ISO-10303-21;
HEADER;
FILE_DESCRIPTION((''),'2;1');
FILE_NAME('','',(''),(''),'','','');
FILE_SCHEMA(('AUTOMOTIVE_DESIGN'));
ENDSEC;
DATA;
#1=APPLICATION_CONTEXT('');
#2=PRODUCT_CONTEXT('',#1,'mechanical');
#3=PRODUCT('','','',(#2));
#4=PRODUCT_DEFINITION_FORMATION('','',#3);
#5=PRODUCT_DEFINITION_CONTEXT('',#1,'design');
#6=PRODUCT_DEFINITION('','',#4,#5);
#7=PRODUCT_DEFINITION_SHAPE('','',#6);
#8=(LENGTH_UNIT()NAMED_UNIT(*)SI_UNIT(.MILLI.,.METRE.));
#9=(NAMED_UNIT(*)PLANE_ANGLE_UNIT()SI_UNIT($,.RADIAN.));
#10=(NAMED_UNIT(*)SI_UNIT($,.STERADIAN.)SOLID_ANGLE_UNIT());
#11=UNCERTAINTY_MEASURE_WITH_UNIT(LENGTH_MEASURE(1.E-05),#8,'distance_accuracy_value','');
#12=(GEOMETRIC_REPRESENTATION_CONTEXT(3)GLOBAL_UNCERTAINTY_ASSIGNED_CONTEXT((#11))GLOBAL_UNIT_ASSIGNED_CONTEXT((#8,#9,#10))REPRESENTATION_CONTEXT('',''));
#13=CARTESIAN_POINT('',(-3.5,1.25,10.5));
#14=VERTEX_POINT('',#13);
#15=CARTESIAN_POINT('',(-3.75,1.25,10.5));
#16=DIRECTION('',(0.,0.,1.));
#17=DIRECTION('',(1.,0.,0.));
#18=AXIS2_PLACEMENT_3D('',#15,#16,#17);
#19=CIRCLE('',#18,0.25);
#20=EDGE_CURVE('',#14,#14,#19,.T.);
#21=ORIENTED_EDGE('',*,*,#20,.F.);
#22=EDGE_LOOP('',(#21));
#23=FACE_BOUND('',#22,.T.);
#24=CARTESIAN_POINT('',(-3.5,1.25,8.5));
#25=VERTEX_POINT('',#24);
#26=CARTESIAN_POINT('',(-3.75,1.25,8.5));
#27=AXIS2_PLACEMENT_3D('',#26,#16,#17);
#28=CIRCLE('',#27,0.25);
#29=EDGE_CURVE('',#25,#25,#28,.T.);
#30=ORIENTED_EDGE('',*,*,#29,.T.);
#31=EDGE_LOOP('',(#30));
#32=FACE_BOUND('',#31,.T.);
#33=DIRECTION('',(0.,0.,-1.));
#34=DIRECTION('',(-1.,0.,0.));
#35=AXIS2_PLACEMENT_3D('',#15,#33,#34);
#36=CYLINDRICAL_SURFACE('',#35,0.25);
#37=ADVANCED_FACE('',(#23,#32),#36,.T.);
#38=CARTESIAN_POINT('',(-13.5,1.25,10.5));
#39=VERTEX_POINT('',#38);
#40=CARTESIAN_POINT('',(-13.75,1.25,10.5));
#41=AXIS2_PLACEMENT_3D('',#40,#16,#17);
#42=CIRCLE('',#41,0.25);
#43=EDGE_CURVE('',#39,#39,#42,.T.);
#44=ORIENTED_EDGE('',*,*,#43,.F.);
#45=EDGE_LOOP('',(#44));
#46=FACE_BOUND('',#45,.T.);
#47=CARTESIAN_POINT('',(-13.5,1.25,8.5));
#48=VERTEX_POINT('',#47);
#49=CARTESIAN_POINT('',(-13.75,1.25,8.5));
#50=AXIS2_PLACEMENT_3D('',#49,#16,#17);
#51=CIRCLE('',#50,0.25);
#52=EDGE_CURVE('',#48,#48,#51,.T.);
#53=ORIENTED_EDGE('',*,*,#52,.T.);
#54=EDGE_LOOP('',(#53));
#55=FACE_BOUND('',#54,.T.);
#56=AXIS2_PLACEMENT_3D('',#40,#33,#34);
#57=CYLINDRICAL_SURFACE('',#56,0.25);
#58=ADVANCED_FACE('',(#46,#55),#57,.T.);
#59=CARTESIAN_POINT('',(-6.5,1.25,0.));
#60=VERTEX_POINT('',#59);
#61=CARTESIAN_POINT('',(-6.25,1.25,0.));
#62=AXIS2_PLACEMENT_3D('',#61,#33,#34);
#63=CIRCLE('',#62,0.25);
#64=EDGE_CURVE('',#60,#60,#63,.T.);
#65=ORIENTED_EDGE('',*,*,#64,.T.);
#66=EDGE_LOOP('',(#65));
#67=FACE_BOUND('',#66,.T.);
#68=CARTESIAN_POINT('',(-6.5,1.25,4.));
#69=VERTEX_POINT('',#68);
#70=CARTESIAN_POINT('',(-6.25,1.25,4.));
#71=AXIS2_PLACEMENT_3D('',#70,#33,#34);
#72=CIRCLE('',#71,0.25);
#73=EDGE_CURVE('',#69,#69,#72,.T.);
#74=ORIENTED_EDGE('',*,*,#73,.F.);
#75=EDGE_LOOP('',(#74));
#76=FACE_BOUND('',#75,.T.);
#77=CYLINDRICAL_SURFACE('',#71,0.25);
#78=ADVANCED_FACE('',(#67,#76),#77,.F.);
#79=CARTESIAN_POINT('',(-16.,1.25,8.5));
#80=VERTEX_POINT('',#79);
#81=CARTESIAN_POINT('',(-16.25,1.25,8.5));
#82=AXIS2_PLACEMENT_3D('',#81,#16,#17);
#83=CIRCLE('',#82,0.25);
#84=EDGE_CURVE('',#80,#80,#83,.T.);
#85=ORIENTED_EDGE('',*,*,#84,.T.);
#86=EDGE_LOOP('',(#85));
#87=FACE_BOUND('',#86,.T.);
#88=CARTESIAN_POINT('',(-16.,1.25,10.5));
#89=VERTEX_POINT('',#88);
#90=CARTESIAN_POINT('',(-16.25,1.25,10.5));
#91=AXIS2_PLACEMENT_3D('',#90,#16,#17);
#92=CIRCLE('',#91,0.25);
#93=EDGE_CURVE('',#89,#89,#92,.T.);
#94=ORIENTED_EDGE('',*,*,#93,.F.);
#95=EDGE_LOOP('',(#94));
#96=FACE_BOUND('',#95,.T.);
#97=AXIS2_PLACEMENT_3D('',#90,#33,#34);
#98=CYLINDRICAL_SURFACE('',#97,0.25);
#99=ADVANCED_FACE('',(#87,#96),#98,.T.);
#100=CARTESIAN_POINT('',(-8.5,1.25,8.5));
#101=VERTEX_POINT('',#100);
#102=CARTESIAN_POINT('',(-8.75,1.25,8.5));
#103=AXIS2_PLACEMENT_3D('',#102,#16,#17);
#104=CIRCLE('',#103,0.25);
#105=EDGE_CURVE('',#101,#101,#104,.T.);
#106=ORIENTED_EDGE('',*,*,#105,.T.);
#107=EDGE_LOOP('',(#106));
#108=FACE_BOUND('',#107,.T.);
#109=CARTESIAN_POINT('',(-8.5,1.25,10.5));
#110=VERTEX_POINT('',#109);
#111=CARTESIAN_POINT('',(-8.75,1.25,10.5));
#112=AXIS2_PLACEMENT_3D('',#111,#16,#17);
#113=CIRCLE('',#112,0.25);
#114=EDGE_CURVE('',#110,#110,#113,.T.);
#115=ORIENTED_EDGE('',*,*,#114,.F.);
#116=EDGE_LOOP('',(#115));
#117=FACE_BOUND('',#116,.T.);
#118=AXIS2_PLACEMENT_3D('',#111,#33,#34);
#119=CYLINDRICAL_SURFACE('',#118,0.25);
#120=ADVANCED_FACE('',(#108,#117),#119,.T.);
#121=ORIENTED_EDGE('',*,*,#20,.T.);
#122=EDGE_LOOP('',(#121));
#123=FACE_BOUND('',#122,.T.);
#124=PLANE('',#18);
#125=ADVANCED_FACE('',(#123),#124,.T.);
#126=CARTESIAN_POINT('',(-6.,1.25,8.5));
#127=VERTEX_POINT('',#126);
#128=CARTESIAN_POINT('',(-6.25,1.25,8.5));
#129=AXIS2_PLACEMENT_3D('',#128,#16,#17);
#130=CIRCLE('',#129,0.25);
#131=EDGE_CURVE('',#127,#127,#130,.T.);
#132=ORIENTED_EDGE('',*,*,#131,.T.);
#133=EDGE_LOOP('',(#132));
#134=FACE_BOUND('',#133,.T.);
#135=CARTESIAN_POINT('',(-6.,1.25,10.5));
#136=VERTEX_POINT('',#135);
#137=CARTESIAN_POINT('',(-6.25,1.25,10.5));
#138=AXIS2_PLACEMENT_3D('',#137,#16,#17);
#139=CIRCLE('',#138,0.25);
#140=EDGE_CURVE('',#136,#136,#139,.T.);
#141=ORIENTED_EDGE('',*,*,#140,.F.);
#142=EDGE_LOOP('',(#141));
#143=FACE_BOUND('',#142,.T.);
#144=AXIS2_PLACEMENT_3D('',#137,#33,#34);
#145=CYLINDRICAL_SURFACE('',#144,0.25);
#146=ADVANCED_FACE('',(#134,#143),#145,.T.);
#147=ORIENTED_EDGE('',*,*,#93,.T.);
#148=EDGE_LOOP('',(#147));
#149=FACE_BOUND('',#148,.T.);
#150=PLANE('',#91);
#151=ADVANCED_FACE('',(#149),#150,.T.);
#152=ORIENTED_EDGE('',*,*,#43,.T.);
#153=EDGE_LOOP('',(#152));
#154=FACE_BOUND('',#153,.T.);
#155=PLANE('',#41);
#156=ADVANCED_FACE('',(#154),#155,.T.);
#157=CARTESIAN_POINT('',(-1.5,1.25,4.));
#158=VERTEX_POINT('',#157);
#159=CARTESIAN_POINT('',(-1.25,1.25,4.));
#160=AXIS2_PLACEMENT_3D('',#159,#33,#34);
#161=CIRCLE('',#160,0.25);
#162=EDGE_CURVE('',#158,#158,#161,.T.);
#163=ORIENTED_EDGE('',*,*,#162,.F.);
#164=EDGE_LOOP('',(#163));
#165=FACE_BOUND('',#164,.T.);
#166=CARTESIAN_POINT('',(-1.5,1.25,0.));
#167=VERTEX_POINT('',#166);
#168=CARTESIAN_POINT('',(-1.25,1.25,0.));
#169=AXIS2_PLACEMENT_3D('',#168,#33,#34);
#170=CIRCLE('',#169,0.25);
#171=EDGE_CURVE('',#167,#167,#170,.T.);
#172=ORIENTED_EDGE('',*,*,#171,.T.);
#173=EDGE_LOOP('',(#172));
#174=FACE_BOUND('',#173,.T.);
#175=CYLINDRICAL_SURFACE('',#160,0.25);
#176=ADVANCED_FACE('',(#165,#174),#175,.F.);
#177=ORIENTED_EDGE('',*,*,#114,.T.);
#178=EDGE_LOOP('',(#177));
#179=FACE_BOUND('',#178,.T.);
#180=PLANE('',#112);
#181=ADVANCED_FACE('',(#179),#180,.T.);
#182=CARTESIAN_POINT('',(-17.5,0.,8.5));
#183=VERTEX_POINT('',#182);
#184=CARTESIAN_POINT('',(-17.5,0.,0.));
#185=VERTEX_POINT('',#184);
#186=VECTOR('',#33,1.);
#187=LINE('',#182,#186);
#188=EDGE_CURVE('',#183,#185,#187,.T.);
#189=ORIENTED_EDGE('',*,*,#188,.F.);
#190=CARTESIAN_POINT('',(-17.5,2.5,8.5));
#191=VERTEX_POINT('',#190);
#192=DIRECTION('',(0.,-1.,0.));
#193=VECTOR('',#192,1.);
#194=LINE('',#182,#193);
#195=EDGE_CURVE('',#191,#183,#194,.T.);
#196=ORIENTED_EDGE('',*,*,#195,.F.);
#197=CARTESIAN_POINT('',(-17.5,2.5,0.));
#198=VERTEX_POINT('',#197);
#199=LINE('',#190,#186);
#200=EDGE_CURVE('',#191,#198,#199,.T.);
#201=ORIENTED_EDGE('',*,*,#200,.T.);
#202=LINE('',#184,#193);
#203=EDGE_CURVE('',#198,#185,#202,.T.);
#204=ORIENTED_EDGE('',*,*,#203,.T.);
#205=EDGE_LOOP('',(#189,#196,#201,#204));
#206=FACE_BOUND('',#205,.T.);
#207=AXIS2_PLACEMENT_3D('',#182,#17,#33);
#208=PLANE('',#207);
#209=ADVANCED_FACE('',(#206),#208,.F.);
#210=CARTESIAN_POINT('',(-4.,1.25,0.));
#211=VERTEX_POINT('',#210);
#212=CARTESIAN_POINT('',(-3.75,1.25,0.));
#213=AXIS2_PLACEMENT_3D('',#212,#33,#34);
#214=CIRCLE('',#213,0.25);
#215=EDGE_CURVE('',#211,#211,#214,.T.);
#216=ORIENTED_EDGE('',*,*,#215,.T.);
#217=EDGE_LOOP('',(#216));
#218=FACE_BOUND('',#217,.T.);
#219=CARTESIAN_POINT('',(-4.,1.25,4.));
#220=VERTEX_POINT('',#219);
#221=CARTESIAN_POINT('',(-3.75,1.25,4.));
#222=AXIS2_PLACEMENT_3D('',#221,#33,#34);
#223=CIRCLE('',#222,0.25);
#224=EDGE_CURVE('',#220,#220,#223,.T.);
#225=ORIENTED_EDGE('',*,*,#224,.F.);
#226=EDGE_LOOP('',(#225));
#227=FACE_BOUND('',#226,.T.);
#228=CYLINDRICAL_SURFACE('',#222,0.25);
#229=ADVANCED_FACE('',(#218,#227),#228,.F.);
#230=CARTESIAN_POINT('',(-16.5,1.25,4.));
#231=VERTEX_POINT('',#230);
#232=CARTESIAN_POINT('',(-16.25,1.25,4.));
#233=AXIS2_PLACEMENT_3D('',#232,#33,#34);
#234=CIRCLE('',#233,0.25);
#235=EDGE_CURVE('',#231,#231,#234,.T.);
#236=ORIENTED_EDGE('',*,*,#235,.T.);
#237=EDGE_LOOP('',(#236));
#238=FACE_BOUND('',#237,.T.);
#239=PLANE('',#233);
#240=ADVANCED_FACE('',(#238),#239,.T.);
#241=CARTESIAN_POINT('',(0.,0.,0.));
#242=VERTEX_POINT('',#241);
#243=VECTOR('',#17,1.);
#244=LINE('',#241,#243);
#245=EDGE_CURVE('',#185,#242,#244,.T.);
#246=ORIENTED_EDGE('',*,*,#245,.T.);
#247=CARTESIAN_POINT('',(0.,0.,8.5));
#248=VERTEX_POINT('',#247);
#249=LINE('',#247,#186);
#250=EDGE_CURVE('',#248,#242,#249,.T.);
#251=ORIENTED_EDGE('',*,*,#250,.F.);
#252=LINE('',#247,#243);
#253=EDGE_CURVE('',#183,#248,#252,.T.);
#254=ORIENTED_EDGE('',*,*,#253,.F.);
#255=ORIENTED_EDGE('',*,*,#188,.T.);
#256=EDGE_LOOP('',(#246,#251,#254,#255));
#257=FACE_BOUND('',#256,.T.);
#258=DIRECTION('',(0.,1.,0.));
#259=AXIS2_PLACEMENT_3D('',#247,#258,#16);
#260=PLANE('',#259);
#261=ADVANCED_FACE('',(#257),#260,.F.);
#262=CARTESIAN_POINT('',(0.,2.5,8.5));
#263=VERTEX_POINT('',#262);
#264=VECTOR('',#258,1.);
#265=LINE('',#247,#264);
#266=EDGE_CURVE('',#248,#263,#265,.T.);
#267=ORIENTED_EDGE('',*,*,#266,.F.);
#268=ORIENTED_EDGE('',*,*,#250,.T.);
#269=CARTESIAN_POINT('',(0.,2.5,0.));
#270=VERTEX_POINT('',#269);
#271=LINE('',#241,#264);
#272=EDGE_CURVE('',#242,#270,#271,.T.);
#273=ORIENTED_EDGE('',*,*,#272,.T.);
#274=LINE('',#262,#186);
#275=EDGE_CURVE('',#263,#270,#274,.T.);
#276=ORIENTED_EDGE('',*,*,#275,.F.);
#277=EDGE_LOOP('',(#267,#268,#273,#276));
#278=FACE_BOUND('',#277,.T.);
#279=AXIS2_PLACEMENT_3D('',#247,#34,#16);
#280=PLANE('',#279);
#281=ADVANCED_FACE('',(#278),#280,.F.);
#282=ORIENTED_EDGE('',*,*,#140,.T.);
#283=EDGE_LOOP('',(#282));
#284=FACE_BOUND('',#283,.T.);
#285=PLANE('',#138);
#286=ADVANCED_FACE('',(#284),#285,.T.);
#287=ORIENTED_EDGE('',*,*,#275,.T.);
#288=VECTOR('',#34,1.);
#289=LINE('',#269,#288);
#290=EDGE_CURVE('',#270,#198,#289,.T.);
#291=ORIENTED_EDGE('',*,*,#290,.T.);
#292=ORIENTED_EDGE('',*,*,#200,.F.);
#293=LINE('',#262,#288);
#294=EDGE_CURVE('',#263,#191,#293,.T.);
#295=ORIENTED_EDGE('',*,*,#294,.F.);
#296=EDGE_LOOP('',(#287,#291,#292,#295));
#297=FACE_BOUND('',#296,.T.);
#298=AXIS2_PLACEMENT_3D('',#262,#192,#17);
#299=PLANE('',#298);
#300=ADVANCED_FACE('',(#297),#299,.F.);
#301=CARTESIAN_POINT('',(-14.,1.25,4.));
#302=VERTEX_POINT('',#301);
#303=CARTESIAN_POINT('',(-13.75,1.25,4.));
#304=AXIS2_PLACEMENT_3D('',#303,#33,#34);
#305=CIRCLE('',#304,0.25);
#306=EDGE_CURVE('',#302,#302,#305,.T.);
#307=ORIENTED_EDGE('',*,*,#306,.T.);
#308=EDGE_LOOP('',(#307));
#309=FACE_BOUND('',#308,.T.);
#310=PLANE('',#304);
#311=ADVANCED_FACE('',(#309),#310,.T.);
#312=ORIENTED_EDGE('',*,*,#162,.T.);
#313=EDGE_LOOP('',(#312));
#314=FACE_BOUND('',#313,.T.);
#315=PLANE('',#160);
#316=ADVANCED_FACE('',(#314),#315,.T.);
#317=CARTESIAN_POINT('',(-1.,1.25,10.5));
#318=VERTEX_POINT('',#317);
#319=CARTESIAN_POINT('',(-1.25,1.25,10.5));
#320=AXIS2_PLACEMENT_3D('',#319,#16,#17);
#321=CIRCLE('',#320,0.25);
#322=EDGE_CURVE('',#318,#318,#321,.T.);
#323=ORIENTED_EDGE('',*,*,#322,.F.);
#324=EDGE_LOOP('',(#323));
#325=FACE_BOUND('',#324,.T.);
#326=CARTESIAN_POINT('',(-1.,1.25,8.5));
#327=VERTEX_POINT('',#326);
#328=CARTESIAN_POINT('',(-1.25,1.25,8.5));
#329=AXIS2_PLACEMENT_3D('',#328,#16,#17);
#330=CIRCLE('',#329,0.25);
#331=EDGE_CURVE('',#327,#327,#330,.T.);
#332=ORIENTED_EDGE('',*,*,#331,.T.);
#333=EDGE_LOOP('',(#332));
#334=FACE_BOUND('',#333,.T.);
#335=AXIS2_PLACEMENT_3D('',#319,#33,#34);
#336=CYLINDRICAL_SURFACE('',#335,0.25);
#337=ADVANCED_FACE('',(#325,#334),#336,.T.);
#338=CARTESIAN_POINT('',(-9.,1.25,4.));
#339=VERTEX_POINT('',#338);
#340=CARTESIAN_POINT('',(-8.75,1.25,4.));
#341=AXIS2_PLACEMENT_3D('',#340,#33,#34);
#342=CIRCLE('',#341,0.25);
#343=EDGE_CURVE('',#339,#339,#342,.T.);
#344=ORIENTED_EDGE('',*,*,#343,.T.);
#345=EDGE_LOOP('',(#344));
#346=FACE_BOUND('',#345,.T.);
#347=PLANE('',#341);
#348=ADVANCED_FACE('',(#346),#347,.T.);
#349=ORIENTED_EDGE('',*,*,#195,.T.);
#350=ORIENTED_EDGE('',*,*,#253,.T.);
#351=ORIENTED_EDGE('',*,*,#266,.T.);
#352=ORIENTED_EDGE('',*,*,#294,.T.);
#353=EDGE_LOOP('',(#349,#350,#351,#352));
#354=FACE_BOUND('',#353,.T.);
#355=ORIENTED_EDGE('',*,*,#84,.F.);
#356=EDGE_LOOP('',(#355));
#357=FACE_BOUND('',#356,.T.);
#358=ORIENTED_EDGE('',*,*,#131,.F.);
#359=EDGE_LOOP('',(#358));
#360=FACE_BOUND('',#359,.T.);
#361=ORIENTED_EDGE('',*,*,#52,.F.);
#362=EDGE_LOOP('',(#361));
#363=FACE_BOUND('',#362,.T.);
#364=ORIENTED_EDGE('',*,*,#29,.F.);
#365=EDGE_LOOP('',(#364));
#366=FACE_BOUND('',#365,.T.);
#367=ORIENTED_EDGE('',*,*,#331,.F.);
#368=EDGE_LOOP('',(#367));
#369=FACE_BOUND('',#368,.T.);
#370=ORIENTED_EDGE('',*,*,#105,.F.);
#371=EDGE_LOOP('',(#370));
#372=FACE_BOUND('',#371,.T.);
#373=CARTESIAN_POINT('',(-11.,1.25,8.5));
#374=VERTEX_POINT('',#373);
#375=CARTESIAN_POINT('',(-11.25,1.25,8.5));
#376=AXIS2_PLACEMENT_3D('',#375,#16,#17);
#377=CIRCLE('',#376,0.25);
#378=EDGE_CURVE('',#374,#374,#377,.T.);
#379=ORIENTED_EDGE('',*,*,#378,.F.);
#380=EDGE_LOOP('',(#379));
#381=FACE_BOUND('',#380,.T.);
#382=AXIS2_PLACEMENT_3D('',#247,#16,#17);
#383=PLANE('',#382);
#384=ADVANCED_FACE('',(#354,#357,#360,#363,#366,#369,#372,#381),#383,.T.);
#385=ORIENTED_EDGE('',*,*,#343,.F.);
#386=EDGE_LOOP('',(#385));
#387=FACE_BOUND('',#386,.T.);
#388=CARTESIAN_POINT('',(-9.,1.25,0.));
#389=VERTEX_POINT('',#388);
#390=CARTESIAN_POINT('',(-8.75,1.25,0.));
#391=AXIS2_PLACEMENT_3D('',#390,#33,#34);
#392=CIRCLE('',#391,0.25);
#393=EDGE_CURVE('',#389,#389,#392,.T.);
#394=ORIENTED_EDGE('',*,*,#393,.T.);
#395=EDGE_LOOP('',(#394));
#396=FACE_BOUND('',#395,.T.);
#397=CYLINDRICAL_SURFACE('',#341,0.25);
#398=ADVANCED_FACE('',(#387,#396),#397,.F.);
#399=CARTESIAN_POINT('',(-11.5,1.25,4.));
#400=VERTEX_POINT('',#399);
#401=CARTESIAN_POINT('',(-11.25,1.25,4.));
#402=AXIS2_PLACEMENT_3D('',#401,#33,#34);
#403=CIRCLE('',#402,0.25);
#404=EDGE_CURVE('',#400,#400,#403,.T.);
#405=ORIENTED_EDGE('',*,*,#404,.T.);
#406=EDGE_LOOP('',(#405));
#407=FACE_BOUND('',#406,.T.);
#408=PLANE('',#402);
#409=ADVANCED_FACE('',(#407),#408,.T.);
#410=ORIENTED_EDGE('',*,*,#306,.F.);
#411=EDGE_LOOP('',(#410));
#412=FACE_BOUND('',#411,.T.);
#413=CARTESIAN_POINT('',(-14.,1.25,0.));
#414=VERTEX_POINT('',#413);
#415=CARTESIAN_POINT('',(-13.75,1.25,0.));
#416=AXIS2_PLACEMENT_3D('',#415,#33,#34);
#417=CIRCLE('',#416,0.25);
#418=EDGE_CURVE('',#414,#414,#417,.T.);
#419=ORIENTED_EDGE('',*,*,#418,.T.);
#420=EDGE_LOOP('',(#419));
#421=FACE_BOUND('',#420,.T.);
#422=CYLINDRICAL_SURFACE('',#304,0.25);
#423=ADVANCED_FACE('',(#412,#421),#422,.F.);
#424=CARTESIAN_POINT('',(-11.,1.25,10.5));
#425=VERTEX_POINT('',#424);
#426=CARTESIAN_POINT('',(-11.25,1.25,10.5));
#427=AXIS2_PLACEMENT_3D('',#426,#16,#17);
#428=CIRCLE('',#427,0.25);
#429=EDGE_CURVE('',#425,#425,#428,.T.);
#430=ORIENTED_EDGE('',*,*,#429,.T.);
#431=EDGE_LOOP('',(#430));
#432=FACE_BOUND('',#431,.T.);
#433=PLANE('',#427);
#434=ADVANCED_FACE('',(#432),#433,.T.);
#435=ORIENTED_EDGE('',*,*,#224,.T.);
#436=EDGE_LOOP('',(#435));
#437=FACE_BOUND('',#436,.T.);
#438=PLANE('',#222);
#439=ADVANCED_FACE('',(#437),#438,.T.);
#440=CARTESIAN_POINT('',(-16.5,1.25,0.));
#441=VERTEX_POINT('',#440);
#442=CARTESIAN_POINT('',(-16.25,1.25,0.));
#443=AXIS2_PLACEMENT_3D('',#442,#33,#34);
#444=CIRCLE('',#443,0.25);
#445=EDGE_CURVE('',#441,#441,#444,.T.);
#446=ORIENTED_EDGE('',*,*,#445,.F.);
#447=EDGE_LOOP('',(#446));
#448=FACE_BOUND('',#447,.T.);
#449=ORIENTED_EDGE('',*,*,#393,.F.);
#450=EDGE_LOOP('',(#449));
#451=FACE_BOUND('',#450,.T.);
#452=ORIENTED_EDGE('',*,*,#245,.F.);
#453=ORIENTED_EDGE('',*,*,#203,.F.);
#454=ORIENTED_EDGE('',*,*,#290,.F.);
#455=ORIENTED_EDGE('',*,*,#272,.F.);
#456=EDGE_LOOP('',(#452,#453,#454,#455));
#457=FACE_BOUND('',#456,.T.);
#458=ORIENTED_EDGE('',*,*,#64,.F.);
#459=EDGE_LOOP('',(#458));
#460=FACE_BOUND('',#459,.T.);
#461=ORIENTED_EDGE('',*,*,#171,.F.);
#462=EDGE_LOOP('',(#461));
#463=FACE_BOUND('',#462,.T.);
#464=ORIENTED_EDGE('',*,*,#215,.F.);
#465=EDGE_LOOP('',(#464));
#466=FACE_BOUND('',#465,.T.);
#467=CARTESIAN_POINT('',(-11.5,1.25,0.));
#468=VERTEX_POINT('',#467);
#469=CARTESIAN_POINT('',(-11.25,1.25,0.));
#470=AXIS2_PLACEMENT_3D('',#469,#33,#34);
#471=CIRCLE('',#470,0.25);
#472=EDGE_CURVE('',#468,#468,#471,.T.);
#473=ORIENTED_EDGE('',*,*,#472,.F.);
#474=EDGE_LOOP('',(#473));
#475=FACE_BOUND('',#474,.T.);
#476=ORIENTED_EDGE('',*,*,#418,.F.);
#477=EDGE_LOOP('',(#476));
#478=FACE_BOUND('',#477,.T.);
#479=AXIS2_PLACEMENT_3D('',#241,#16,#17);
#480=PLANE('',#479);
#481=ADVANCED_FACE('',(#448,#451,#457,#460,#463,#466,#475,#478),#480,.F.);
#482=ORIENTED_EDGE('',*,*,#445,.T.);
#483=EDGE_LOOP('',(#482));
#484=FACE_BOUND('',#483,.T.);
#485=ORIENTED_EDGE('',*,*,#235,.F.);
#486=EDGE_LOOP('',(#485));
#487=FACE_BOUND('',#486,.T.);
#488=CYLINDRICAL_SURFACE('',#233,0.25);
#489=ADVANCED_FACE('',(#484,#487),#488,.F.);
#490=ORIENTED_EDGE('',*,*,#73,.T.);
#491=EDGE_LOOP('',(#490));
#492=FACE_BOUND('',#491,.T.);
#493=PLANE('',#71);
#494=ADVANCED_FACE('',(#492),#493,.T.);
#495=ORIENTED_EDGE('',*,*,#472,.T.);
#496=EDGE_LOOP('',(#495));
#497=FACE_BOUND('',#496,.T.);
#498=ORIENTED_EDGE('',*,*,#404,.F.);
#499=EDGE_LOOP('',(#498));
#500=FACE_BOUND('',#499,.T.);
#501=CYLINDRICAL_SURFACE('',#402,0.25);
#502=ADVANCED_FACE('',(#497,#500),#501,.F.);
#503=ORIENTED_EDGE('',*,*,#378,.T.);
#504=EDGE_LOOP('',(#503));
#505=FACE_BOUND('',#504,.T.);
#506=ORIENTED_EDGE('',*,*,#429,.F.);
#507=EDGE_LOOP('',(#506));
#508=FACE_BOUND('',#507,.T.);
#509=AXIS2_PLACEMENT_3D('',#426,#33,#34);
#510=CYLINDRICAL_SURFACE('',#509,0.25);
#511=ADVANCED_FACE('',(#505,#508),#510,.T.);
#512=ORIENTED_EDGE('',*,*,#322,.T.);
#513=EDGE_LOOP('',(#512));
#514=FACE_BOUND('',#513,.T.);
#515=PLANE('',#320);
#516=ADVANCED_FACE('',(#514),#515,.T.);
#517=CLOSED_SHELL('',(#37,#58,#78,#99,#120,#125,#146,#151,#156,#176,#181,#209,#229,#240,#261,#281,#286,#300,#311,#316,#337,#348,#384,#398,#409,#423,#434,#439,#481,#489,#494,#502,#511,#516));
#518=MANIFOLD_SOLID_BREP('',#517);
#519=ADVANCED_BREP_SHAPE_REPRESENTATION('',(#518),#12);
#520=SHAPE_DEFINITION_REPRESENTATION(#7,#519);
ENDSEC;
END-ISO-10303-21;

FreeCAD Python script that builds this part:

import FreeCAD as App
import Part
import Sketcher


def add_polygon(sketch, points):
    """Adds a closed chain of lines whose ends are joined by coincident constraints."""
    first, n = sketch.GeometryCount, len(points)
    for a, b in zip(points, points[1:] + points[:1]):
        sketch.addGeometry(Part.LineSegment(App.Vector(*a, 0), App.Vector(*b, 0)), False)
    for i in range(n):
        sketch.addConstraint(Sketcher.Constraint("Coincident", first + i, 2, first + (i + 1) % n, 1))

doc = App.newDocument("Part")
params = doc.addObject("Spreadsheet::Sheet", "Params")
for row, (alias, value) in enumerate([
    ("sketch1_width", "2.5 mm"),
    ("pad1_length", "8.5 mm"),
    ("sketch2_diameter", "0.5 mm"),
    ("pad2_length", "2 mm"),
    ("sketch3_diameter", "0.5 mm"),
    ("pocket1_length", "4 mm"),
    ("linearpattern_pitch", "2.5 mm"),
], start=1):
    params.set(f"A{row}", alias)
    params.set(f"B{row}", "=" + value)
    params.setAlias(f"B{row}", alias)

body = doc.addObject("PartDesign::Body", "Body")

# Sketch on XY plane
sketch1 = body.newObject("Sketcher::SketchObject", "Sketch")
sketch1.AttachmentSupport = (doc.getObject("XY_Plane"), [""])
sketch1.MapMode = "FlatFace"
add_polygon(sketch1, [(-2.5, 2.5), (-2.5, 0), (0, 0), (0, 2.5)])  # lines 0-3
sketch1.addConstraint([
    Sketcher.Constraint("Vertical", 0),
    Sketcher.Constraint("Horizontal", 1),
    Sketcher.Constraint("Vertical", 2),
    Sketcher.Constraint("Horizontal", 3),
    Sketcher.Constraint("Coincident", 1, 2, -1, 1),
    Sketcher.Constraint("Equal", 3, 0),
    Sketcher.Constraint("DistanceX", 1, 1, 1, 2, 2.5),
])
sketch1.setExpression("Constraints[10]", "Params.sketch1_width")
pad1 = body.newObject("PartDesign::Pad", "Pad")
pad1.Profile = sketch1
pad1.setExpression("Length", "Params.pad1_length")

# Sketch on XY plane
sketch2 = body.newObject("Sketcher::SketchObject", "Sketch001")
sketch2.AttachmentSupport = (doc.getObject("XY_Plane"), [""])
sketch2.MapMode = "FlatFace"
sketch2.AttachmentOffset = App.Placement(App.Vector(0, 0, 8.5), App.Rotation())
sketch2.addGeometry(Part.Circle(App.Vector(-1.25, 1.25, 0), App.Vector(0, 0, 1), 0.25), False)
sketch2.addConstraint([
    Sketcher.Constraint("Diameter", 0, 0.5),
    Sketcher.Constraint("DistanceX", 0, 3, -1, 1, 1.25),
    Sketcher.Constraint("DistanceY", -1, 1, 0, 3, 1.25),
])
sketch2.setExpression("Constraints[0]", "Params.sketch2_diameter")
pad2 = body.newObject("PartDesign::Pad", "Pad001")
pad2.Profile = sketch2
pad2.setExpression("Length", "Params.pad2_length")

# Sketch on XY plane
sketch3 = body.newObject("Sketcher::SketchObject", "Sketch002")
sketch3.AttachmentSupport = (doc.getObject("XY_Plane"), [""])
sketch3.MapMode = "FlatFace"
sketch3.addGeometry(Part.Circle(App.Vector(-1.25, 1.25, 0), App.Vector(0, 0, 1), 0.25), False)
sketch3.addConstraint([
    Sketcher.Constraint("Diameter", 0, 0.5),
    Sketcher.Constraint("DistanceX", 0, 3, -1, 1, 1.25),
    Sketcher.Constraint("DistanceY", -1, 1, 0, 3, 1.25),
])
sketch3.setExpression("Constraints[0]", "Params.sketch3_diameter")
pocket1 = body.newObject("PartDesign::Pocket", "Pocket")
pocket1.Profile = sketch3
pocket1.setExpression("Length", "Params.pocket1_length")
pocket1.Reversed = True
doc.recompute()

linearpattern = body.newObject("PartDesign::LinearPattern", "LinearPattern")
linearpattern.Originals = [pad1, pad2, pocket1]
linearpattern.Direction = (doc.getObject("X_Axis"), [""])
linearpattern.Mode = "offset"
linearpattern.setExpression("Offset", "Params.linearpattern_pitch")
linearpattern.Occurrences = 7
linearpattern.Reversed = True
body.Tip = linearpattern

doc.recompute()
